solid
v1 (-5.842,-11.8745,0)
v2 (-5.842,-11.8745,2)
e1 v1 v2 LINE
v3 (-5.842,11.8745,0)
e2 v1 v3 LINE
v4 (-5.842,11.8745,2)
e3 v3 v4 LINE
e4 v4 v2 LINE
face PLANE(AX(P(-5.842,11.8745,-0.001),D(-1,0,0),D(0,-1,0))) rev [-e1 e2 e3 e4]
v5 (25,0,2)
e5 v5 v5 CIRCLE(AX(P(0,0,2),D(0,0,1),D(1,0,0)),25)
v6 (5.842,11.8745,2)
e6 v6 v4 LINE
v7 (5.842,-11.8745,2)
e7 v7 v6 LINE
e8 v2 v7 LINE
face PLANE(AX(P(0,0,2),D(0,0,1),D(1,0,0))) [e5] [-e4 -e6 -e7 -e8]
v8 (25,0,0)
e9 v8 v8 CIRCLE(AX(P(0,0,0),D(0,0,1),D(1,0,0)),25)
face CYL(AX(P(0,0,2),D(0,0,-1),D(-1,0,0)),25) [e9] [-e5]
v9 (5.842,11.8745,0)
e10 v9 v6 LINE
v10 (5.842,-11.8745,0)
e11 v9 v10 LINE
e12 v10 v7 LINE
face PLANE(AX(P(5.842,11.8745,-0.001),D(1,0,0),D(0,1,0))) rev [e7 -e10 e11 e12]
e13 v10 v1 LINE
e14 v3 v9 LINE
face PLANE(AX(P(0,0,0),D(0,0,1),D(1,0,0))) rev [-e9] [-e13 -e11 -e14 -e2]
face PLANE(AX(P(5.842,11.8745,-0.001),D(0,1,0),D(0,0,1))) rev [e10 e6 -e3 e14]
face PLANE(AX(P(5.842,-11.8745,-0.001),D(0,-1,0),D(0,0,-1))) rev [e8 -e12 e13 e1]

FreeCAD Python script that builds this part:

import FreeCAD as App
import Part
import Sketcher
from FreeCAD import Vector


def add_polygon(sketch, points):
    """Adds a closed chain of lines whose ends are joined by coincident constraints."""
    first, n = sketch.GeometryCount, len(points)
    for a, b in zip(points, points[1:] + points[:1]):
        sketch.addGeometry(Part.LineSegment(App.Vector(*a, 0), App.Vector(*b, 0)), False)
    for i in range(n):
        sketch.addConstraint(Sketcher.Constraint("Coincident", first + i, 2, first + (i + 1) % n, 1))

doc = App.newDocument("Part")
params = doc.addObject("Spreadsheet::Sheet", "Params")
for row, (alias, value) in enumerate([
    ("sketch1_diameter", "50 mm"),
    ("pad1_length", "2 mm"),
], start=1):
    params.set(f"A{row}", alias)
    params.set(f"B{row}", "=" + value)
    params.setAlias(f"B{row}", alias)

body = doc.addObject("PartDesign::Body", "Body")

# Sketch on XY plane
sketch1 = doc.addObject("Sketcher::SketchObject", "Sketch")
body.addObject(sketch1)
sketch1.AttachmentSupport = (doc.XY_Plane, [""])
sketch1.MapMode = "FlatFace"
sketch1.addGeometry(Part.Circle(Vector(0, 0, 0), Vector(0, 0, 1), 25), False)
sketch1.addConstraint([
    Sketcher.Constraint("Coincident", 0, 3, -1, 1),
    Sketcher.Constraint("Diameter", 0, 50.0),
])
sketch1.setExpression("Constraints[1]", "Params.sketch1_diameter")
pad1 = doc.addObject("PartDesign::Pad", "Pad")
body.addObject(pad1)
pad1.Profile = sketch1
pad1.setExpression("Length", "Params.pad1_length")

# Sketch on XY plane
sketch2 = doc.addObject("Sketcher::SketchObject", "Sketch001")
body.addObject(sketch2)
sketch2.AttachmentSupport = (doc.XY_Plane, [""])
sketch2.MapMode = "FlatFace"
sketch2.AttachmentOffset = App.Placement(Vector(0, 0, 2), App.Rotation())
add_polygon(sketch2, [(-6, 12), (-6, -12), (6, -12), (6, 12)])  # lines 0-3
sketch2.addConstraint([
    Sketcher.Constraint("Vertical", 0),
    Sketcher.Constraint("Horizontal", 1),
    Sketcher.Constraint("Vertical", 2),
    Sketcher.Constraint("Horizontal", 3),
    Sketcher.Constraint("Symmetric", 0, 2, 2, 2, -1, 1),
    Sketcher.Constraint("DistanceX", 1, 1, 1, 2, 11.684),
    Sketcher.Constraint("DistanceY", 0, 2, 0, 1, 23.749),
])
pocket1 = doc.addObject("PartDesign::Pocket", "Pocket")
body.addObject(pocket1)
pocket1.Profile = sketch2
pocket1.Type = "UpToFirst"

doc.recompute()
